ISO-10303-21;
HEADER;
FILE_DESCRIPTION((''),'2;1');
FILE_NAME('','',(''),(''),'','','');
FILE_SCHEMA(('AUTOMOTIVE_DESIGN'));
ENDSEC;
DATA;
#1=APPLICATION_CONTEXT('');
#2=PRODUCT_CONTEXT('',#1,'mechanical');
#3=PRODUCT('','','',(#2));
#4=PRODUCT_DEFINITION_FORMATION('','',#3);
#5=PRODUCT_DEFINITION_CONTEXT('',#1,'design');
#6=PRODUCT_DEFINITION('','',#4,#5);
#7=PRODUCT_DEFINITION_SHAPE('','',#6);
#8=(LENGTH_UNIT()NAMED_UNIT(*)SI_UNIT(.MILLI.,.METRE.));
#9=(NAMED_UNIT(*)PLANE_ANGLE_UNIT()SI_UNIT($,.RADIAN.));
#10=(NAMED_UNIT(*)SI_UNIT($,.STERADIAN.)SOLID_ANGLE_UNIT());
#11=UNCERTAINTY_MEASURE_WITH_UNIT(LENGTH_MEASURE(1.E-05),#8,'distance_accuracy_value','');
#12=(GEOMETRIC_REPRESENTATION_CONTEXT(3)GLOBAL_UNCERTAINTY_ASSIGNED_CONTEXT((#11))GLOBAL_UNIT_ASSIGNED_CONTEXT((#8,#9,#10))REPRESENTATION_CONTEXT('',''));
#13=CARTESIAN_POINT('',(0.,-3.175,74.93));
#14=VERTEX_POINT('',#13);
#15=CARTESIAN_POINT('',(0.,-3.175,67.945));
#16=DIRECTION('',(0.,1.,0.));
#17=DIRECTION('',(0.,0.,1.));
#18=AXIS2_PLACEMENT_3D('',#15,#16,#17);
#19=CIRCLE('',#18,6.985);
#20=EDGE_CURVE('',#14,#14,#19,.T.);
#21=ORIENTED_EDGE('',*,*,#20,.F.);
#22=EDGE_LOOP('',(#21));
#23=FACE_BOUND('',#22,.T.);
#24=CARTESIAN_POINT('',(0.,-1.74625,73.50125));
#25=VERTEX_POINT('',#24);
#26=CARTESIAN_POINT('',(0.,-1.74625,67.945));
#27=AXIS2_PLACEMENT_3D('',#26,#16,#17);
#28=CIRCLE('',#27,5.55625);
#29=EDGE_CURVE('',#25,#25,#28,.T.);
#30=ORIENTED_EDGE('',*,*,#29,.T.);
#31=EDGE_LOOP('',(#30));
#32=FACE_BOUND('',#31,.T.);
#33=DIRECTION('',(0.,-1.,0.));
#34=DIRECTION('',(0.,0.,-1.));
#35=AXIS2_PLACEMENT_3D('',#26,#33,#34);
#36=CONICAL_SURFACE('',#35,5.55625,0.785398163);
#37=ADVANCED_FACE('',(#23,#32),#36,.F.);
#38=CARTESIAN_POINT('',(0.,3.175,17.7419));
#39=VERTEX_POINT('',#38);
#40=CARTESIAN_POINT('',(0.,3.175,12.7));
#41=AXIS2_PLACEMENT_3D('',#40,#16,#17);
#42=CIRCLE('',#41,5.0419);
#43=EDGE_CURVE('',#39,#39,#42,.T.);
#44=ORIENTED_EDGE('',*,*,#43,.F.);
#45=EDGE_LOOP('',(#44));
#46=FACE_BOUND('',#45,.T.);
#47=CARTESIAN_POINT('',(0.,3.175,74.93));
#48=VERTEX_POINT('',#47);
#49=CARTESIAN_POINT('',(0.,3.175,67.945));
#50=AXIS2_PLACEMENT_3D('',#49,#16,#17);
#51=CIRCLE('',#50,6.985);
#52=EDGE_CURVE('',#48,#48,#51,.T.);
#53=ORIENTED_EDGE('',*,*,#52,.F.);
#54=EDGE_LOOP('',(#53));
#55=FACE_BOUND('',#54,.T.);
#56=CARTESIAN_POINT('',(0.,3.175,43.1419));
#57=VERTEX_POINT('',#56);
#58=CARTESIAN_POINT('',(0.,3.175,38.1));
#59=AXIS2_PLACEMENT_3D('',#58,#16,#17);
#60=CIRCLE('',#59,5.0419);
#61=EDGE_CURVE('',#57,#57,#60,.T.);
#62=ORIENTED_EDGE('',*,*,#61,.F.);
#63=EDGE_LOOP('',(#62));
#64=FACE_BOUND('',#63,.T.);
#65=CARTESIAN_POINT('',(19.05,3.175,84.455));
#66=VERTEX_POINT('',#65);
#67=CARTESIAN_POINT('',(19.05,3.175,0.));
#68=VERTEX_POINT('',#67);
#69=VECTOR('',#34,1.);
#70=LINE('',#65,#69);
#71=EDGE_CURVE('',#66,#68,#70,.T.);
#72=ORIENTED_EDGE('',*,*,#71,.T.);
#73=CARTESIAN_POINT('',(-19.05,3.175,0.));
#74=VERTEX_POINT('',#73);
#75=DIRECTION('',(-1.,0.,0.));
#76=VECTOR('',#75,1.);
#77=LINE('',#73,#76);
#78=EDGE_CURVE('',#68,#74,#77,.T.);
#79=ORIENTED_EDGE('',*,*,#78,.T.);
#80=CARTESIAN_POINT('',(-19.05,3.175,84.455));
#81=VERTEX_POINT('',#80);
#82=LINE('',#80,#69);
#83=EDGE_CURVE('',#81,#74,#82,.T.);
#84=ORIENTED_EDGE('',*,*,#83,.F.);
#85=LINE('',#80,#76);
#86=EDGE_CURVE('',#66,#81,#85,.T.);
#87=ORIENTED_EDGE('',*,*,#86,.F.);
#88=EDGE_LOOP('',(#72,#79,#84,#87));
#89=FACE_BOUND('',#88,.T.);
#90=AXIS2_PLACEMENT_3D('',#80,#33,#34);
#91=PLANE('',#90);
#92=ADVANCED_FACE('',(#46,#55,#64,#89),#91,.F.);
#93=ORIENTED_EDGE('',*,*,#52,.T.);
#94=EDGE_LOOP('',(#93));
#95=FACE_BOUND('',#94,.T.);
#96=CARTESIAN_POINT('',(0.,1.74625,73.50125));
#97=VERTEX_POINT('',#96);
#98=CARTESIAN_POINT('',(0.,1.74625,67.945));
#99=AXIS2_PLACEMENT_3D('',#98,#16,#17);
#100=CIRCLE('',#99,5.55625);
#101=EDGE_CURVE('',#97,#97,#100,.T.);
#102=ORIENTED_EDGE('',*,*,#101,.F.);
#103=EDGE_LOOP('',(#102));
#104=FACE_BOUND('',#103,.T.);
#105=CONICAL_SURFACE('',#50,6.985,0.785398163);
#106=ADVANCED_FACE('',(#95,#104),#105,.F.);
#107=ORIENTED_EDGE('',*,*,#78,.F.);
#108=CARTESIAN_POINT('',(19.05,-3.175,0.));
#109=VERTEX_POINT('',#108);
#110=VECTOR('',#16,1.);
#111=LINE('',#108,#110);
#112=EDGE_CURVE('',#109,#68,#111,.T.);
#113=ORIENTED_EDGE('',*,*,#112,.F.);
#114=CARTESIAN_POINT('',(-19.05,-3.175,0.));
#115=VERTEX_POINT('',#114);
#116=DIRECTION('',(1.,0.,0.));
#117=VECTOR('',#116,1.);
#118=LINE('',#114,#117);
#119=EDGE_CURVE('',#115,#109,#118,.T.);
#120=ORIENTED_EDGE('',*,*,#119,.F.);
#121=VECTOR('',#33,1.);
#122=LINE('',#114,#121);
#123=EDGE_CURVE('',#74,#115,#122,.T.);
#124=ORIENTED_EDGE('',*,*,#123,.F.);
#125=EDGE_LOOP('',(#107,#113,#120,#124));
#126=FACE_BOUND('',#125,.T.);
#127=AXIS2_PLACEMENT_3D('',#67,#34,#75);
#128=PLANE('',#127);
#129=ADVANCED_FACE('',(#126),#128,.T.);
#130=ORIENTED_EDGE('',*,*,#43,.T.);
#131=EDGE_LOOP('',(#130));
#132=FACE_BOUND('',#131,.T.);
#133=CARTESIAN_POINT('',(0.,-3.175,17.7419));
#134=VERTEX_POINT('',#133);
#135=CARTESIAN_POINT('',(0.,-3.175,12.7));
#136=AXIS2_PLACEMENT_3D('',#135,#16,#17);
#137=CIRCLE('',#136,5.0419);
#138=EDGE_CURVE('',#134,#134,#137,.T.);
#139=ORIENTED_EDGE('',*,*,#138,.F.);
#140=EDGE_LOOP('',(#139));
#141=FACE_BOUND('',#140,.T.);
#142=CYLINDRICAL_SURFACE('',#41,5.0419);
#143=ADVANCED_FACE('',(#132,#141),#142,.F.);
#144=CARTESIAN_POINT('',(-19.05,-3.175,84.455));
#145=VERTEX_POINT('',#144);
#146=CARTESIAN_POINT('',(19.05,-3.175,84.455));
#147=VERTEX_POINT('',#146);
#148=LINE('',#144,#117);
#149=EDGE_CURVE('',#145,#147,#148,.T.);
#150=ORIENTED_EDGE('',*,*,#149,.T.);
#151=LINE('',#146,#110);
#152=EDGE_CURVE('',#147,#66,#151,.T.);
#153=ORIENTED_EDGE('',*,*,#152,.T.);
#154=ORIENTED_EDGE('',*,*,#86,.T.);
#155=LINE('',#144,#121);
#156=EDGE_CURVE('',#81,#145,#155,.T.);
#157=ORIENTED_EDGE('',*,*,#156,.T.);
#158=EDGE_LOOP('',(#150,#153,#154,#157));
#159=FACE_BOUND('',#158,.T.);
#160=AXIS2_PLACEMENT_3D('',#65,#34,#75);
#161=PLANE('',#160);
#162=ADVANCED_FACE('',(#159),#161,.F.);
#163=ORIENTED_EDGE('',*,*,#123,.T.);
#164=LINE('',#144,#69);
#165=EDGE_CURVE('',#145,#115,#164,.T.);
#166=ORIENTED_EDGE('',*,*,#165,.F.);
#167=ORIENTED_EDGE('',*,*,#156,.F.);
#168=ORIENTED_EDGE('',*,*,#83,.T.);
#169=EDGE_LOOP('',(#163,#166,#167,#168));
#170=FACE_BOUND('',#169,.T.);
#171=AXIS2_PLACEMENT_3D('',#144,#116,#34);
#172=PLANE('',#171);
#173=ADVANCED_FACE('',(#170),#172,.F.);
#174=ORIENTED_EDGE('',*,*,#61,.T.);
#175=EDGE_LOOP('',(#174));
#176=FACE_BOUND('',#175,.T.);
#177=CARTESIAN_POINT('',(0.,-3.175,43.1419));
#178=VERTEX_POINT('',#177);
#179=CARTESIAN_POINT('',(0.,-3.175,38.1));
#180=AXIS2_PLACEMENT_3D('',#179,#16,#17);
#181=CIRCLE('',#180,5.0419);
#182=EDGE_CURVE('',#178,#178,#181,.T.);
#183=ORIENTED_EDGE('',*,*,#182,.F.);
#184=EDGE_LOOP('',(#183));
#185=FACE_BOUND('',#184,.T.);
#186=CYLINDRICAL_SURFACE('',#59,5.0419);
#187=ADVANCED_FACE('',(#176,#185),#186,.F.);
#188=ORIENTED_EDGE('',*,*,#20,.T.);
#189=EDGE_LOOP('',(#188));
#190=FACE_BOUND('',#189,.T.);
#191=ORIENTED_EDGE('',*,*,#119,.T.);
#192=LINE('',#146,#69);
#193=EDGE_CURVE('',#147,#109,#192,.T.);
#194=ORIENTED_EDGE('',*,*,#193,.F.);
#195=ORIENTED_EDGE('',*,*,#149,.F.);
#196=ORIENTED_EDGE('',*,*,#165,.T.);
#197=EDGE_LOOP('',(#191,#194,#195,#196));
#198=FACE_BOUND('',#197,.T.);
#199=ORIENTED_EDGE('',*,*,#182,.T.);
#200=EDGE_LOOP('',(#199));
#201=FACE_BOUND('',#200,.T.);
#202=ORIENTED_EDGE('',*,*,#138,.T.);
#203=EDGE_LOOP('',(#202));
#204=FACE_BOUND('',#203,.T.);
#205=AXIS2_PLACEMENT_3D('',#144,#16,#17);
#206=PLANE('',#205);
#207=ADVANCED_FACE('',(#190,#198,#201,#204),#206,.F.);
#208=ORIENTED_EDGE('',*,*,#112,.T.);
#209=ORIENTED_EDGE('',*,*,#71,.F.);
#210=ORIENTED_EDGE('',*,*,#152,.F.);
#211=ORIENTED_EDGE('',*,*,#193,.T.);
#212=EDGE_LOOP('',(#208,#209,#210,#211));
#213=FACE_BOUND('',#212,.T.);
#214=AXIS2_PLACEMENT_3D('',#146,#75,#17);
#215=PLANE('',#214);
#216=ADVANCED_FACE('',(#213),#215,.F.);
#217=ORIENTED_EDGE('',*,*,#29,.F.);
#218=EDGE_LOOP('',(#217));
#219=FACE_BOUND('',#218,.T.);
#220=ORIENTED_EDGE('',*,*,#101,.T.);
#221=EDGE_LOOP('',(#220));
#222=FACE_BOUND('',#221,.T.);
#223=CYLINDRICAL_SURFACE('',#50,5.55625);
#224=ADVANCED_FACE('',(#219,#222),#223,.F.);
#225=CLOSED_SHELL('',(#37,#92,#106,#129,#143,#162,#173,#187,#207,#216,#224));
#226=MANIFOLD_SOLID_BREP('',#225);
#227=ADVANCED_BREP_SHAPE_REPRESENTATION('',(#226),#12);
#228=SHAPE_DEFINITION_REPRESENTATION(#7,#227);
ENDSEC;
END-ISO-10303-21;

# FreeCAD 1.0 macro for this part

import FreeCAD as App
import Part
import Sketcher

V = App.Vector
Q = App.Units.Quantity


def add_polygon(sketch, points):
    """Adds a closed chain of lines whose ends are joined by coincident constraints."""
    first, n = sketch.GeometryCount, len(points)
    for a, b in zip(points, points[1:] + points[:1]):
        sketch.addGeometry(Part.LineSegment(App.Vector(*a, 0), App.Vector(*b, 0)), False)
    for i in range(n):
        sketch.addConstraint(Sketcher.Constraint("Coincident", first + i, 2, first + (i + 1) % n, 1))

doc = App.newDocument("Part")
body = doc.addObject("PartDesign::Body", "Body")

sketch1 = doc.addObject("Sketcher::SketchObject", "Sketch")
body.addObject(sketch1)
sketch1.AttachmentSupport = (doc.XY_Plane, [""])
sketch1.MapMode = "FlatFace"
add_polygon(sketch1, [(-19.05, 3.175), (-19.05, -3.175), (19.05, -3.175), (19.05, 3.175)])
sketch1.addConstraint([
    Sketcher.Constraint("Vertical", 0),
    Sketcher.Constraint("Horizontal", 1),
    Sketcher.Constraint("Vertical", 2),
    Sketcher.Constraint("Horizontal", 3),
    Sketcher.Constraint("Symmetric", 0, 2, 2, 2, -1, 1),
    Sketcher.Constraint("DistanceX", 1, 1, 1, 2, Q("1.5 in")),
    Sketcher.Constraint("DistanceY", 0, 2, 0, 1, Q("0.25 in")),
])
pad1 = doc.addObject("PartDesign::Pad", "Pad")
body.addObject(pad1)
pad1.Profile = sketch1
pad1.Length = Q("3.325 in")

sketch2 = doc.addObject("Sketcher::SketchObject", "Sketch001")
body.addObject(sketch2)
sketch2.AttachmentSupport = (doc.XZ_Plane, [""])
sketch2.MapMode = "FlatFace"
sketch2.AttachmentOffset = App.Placement(V(0, 0, -0.125 * 25.4), App.Rotation())
sketch2.addGeometry([
    Part.Circle(V(0, 12.7, 0), V(0, 0, 1), 5.0419),
    Part.Circle(V(0, 38.1, 0), V(0, 0, 1), 5.0419),
], False)
sketch2.addConstraint([
    Sketcher.Constraint("Equal", 0, 1),
    Sketcher.Constraint("PointOnObject", 0, 3, -2),
    Sketcher.Constraint("PointOnObject", 1, 3, -2),
    Sketcher.Constraint("Diameter", 0, Q("0.397 in")),
    Sketcher.Constraint("DistanceY", 0, 3, 1, 3, Q("1 in")),
    Sketcher.Constraint("DistanceY", -1, 1, 0, 3, Q("0.5 in")),
])
doc.recompute()
hole = doc.addObject("PartDesign::Hole", "Hole")
body.addObject(hole)
hole.Profile = sketch2
hole.ThreadType = "None"
hole.Diameter = Q("0.397 in")
hole.DepthType = "Dimension"
hole.Depth = Q("0.63 in")
hole.DrillPoint = "Angled"
hole.DrillPointAngle = 118
hole.Reversed = True

sketch3 = doc.addObject("Sketcher::SketchObject", "Sketch002")
body.addObject(sketch3)
sketch3.AttachmentSupport = (doc.YZ_Plane, [""])
sketch3.MapMode = "FlatFace"
add_polygon(sketch3, [(-3.175, 67.945), (3.175, 67.945), (3.175, 74.93), (1.74625, 73.50125), (-1.74625, 73.50125), (-3.175, 74.93)])
sketch3.addGeometry(Part.LineSegment(V(3.175, 67.945, 0), V(-3.175, 67.945, 0)), True)
sketch3.addConstraint([
    Sketcher.Constraint("Horizontal", 0),
    Sketcher.Constraint("Vertical", 1),
    Sketcher.Constraint("Horizontal", 3),
    Sketcher.Constraint("Vertical", 5),
    Sketcher.Constraint("Horizontal", 6),
    Sketcher.Constraint("Coincident", 6, 1, 0, 2),
    Sketcher.Constraint("Symmetric", 1, 2, 4, 2, -2),
    Sketcher.Constraint("Perpendicular", 2, 4),
    Sketcher.Constraint("Vertical", 4, 2, 6, 2),
    Sketcher.Constraint("Equal", 2, 4),
    Sketcher.Constraint("DistanceX", 0, 1, 0, 2, Q("0.25 in")),
    Sketcher.Constraint("DistanceY", 1, 1, 1, 2, Q("0.275 in")),
    Sketcher.Constraint("DistanceY", -1, 1, 1, 2, Q("2.95 in")),
    Sketcher.Constraint("DistanceX", 3, 2, 3, 1, Q("0.1375 in")),
])
groove = doc.addObject("PartDesign::Groove", "Groove")
body.addObject(groove)
groove.Profile = sketch3
groove.ReferenceAxis = (sketch3, ["Axis0"])
groove.Angle = 360

doc.recompute()
